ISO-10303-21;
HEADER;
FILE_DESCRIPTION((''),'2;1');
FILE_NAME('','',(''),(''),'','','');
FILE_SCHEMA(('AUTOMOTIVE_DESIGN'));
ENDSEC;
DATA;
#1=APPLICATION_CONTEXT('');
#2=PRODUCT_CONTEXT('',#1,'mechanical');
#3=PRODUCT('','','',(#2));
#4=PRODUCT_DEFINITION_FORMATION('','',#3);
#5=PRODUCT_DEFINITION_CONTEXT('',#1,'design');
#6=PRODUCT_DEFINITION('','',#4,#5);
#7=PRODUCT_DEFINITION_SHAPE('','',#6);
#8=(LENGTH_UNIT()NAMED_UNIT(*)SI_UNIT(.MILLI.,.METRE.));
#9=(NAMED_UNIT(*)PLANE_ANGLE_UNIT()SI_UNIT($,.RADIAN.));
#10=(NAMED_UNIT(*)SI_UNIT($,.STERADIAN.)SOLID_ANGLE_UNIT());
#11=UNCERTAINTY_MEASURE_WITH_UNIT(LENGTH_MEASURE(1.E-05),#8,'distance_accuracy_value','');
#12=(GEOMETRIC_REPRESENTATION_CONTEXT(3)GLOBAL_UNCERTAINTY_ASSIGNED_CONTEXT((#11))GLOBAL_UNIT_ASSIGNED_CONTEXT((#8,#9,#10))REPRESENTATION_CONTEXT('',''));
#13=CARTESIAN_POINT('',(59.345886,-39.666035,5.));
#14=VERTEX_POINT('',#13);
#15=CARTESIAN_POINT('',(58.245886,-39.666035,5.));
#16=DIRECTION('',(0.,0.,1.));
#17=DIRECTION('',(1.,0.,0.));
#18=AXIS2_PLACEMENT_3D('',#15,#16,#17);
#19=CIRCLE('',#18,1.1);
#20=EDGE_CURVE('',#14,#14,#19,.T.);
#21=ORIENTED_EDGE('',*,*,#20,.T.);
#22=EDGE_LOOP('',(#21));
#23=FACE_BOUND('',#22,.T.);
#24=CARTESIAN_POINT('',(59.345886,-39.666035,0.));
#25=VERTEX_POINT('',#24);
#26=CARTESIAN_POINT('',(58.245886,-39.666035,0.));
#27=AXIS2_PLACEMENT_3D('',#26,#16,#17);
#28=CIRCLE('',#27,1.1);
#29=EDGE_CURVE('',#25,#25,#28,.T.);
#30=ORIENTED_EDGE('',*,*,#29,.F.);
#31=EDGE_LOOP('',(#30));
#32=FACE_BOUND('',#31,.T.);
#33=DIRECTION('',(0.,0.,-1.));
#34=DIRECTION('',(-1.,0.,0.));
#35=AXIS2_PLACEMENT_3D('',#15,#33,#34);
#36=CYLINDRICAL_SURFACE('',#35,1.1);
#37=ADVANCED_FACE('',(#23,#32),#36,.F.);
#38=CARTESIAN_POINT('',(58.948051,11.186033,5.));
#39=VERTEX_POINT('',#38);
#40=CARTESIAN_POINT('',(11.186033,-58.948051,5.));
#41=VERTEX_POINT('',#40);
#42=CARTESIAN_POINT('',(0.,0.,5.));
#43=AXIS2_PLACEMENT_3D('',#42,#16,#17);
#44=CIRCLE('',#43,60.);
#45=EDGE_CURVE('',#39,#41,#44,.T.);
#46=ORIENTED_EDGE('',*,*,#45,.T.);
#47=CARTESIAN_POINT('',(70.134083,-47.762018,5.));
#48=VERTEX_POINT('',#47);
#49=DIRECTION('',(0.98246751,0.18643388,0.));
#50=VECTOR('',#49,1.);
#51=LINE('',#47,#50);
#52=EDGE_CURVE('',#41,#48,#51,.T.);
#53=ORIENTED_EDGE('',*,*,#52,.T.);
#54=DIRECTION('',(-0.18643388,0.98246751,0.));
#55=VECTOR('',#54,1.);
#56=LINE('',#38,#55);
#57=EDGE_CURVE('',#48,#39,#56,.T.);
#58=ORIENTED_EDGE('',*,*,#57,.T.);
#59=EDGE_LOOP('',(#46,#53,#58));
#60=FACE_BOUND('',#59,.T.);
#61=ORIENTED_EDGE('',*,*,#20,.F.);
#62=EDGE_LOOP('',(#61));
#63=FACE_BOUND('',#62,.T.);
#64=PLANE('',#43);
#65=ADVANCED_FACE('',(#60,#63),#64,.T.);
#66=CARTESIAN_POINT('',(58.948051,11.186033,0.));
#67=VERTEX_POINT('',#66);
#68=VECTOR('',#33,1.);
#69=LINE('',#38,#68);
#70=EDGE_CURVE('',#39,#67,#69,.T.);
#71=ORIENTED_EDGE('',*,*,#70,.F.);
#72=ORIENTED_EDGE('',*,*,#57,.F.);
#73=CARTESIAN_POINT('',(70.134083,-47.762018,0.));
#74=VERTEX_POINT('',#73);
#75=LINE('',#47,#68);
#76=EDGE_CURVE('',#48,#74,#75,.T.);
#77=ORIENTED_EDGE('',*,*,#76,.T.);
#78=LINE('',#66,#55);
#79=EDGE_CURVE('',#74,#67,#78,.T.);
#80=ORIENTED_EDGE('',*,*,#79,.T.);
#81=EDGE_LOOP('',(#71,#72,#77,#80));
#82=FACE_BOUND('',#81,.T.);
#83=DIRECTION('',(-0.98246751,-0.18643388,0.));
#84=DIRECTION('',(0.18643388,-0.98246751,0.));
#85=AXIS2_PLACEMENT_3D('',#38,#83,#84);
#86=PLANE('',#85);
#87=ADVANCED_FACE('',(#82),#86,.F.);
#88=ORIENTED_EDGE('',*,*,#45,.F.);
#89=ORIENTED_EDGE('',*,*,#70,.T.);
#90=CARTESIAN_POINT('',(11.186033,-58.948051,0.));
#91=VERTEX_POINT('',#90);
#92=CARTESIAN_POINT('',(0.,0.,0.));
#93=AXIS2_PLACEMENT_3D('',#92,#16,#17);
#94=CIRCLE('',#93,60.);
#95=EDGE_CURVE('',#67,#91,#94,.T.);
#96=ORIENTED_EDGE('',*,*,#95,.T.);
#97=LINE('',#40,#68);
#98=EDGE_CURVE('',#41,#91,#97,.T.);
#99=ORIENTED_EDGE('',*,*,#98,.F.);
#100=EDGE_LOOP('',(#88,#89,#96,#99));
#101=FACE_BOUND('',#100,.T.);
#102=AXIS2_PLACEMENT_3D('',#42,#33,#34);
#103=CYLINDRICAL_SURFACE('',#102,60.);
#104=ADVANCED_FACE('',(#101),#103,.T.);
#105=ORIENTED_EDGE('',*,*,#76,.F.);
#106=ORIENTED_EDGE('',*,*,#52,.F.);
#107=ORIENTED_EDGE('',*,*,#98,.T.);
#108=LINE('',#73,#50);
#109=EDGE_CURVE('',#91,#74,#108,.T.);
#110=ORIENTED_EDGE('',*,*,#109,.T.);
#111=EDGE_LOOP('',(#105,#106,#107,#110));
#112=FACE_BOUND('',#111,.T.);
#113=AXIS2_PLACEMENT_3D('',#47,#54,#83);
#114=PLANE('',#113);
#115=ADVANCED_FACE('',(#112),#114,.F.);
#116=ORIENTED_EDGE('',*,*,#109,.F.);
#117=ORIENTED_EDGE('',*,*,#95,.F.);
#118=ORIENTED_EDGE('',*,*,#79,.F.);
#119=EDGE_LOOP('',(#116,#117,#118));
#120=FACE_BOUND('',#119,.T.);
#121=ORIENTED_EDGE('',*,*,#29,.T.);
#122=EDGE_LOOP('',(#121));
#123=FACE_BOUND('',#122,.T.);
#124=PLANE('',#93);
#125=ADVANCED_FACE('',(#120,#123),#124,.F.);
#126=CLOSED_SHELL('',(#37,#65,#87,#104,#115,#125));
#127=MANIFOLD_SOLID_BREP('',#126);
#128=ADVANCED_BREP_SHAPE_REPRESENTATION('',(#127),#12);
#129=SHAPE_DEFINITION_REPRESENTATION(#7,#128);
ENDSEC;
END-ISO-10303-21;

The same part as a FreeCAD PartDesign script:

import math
import FreeCAD as App
import Part
import Sketcher
from FreeCAD import Vector

doc = App.newDocument("Part")
body = doc.addObject("PartDesign::Body", "Body")

# Sketch on XY plane
sketch1 = body.newObject("Sketcher::SketchObject", "Sketch")
sketch1.AttachmentSupport = (doc.getObject("XY_Plane"), [""])
sketch1.MapMode = "FlatFace"
sketch1.addGeometry([
    Part.LineSegment(Vector(70.1, -47.8, 0), Vector(58.9, 11.2, 0)),
    Part.ArcOfCircle(Part.Circle(Vector(0, 0, 0), Vector(0, 0, 1), 60), math.radians(11), math.radians(281)),
    Part.LineSegment(Vector(11.2, -58.9, 0), Vector(70.1, -47.8, 0)),
    Part.Circle(Vector(58.2, -39.7, 0), Vector(0, 0, 1), 1.1),
], False)
sketch1.addConstraint([
    Sketcher.Constraint("Tangent", 0, 2, 1, 1),
    Sketcher.Constraint("Tangent", 1, 2, 2, 1),
    Sketcher.Constraint("Coincident", 2, 2, 0, 1),
    Sketcher.Constraint("Coincident", 1, 3, -1, 1),
    Sketcher.Constraint("Perpendicular", 0, 2),
    Sketcher.Constraint("Radius", 1, 60.0),
    Sketcher.Constraint("Diameter", 3, 2.2),
    Sketcher.Constraint("DistanceX", -1, 1, 0, 2, 58.948051),
    Sketcher.Constraint("DistanceY", 3, 3, 0, 2, 50.852068),
    Sketcher.Constraint("DistanceX", -1, 1, 3, 3, 58.245886),
])
pad1 = body.newObject("PartDesign::Pad", "Pad")
pad1.Profile = sketch1
pad1.Length = 5

doc.recompute()
